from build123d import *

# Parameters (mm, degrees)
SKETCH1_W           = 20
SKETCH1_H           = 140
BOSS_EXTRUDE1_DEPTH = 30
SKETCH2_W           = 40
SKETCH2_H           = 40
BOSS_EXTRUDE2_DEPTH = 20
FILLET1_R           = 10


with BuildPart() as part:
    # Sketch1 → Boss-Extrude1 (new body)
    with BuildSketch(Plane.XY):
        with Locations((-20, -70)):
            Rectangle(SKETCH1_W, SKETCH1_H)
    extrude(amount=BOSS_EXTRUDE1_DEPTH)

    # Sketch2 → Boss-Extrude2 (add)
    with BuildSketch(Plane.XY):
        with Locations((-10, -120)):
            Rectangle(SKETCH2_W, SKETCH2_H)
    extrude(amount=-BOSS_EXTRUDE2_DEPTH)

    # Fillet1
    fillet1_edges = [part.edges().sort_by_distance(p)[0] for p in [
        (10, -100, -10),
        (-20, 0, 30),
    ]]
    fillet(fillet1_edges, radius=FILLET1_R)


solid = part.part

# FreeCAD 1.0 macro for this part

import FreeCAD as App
import Part
import Sketcher

V = App.Vector
Q = App.Units.Quantity


def edges_at(feature, points):
    """Names of the edges that pass closest to the given points."""
    edges = feature.Shape.Edges
    near = lambda p: min(range(len(edges)), key=lambda i: edges[i].distToShape(Part.Vertex(*p))[0])
    return sorted({f"Edge{near(p) + 1}" for p in points})

doc = App.newDocument("Part")
body = doc.addObject("PartDesign::Body", "Body")

sketch1 = doc.addObject("Sketcher::SketchObject", "Sketch")
body.addObject(sketch1)
sketch1.AttachmentSupport = (doc.XY_Plane, [""])
sketch1.MapMode = "FlatFace"
sketch1.addGeometry([
    Part.LineSegment(V(-30, 0, 0), V(-30, -140, 0)),
    Part.LineSegment(V(-30, -140, 0), V(-10, -140, 0)),
    Part.LineSegment(V(-10, -140, 0), V(-10, 0, 0)),
    Part.LineSegment(V(-10, 0, 0), V(-30, 0, 0)),
], False)
sketch1.addConstraint([
    Sketcher.Constraint("Coincident", 0, 2, 1, 1),
    Sketcher.Constraint("Coincident", 1, 2, 2, 1),
    Sketcher.Constraint("Coincident", 2, 2, 3, 1),
    Sketcher.Constraint("Coincident", 3, 2, 0, 1),
    Sketcher.Constraint("Vertical", 0),
    Sketcher.Constraint("Horizontal", 1),
    Sketcher.Constraint("Vertical", 2),
    Sketcher.Constraint("Horizontal", 3),
    Sketcher.Constraint("PointOnObject", 2, 2, -1),
    Sketcher.Constraint("DistanceX", 1, 1, 1, 2, Q("20 mm")),
    Sketcher.Constraint("DistanceY", 0, 2, 0, 1, Q("140 mm")),
    Sketcher.Constraint("DistanceX", 0, 2, -1, 1, Q("30 mm")),
])
pad1 = doc.addObject("PartDesign::Pad", "Pad")
body.addObject(pad1)
pad1.Profile = sketch1
pad1.Length = 30

sketch2 = doc.addObject("Sketcher::SketchObject", "Sketch001")
body.addObject(sketch2)
sketch2.AttachmentSupport = (doc.XY_Plane, [""])
sketch2.MapMode = "FlatFace"
sketch2.addGeometry([
    Part.LineSegment(V(-30, -100, 0), V(-30, -140, 0)),
    Part.LineSegment(V(-30, -140, 0), V(10, -140, 0)),
    Part.LineSegment(V(10, -140, 0), V(10, -100, 0)),
    Part.LineSegment(V(10, -100, 0), V(-30, -100, 0)),
], False)
sketch2.addConstraint([
    Sketcher.Constraint("Coincident", 0, 2, 1, 1),
    Sketcher.Constraint("Coincident", 1, 2, 2, 1),
    Sketcher.Constraint("Coincident", 2, 2, 3, 1),
    Sketcher.Constraint("Coincident", 3, 2, 0, 1),
    Sketcher.Constraint("Vertical", 0),
    Sketcher.Constraint("Horizontal", 1),
    Sketcher.Constraint("Vertical", 2),
    Sketcher.Constraint("Horizontal", 3),
    Sketcher.Constraint("Equal", 3, 0),
    Sketcher.Constraint("DistanceX", 1, 1, 1, 2, Q("40 mm")),
    Sketcher.Constraint("DistanceX", 0, 2, -1, 1, Q("30 mm")),
    Sketcher.Constraint("DistanceY", 0, 2, -1, 1, Q("140 mm")),
])
pad2 = doc.addObject("PartDesign::Pad", "Pad001")
body.addObject(pad2)
pad2.Profile = sketch2
pad2.Length = 20
pad2.Reversed = True
doc.recompute()

fillet = doc.addObject("PartDesign::Fillet", "Fillet")
body.addObject(fillet)
fillet.Base = (pad2, edges_at(pad2, [(10, -100, -10), (-20, 0, 30)]))
fillet.Radius = 10

doc.recompute()
